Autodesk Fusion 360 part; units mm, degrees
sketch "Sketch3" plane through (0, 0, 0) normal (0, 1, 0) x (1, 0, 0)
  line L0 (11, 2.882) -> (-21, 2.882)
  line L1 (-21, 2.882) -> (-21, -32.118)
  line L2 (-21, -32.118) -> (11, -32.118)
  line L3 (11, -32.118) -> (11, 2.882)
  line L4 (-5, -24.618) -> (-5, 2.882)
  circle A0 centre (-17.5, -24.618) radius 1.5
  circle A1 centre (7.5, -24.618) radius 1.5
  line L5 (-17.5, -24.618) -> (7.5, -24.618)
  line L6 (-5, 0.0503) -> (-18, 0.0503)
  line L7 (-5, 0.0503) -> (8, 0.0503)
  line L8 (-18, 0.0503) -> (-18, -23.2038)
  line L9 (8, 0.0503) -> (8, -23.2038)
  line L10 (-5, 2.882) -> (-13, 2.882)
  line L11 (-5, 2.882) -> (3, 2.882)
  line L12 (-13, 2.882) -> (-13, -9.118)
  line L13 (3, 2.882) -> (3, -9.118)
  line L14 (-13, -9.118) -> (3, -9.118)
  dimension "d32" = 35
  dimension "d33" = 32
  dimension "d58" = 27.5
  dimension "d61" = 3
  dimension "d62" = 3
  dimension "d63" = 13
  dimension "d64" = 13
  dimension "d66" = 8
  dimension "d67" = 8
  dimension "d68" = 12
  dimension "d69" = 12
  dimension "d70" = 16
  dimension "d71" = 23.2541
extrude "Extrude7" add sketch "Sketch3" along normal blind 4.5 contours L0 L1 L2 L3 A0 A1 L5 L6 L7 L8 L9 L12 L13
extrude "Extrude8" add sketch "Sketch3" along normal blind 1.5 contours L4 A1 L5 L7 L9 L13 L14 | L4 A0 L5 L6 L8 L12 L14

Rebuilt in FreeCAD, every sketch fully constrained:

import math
import FreeCAD as App
import Part
import Sketcher
Q = App.Units.Quantity

doc = App.newDocument("Part")
body = doc.addObject("PartDesign::Body", "Body")

# Sketch on XZ plane
sketch1 = doc.addObject("Sketcher::SketchObject", "Sketch")
body.addObject(sketch1)
sketch1.AttachmentSupport = (doc.XZ_Plane, [""])
sketch1.MapMode = "FlatFace"
sketch1.addGeometry([
    Part.LineSegment(App.Vector(11, 32.1, 0), App.Vector(11, -2.9, 0)),  # 0
    Part.LineSegment(App.Vector(11, -2.9, 0), App.Vector(3, -2.9, 0)),  # 1
    Part.LineSegment(App.Vector(3, -2.9, 0), App.Vector(3, -0.1, 0)),  # 2
    Part.LineSegment(App.Vector(3, -0.1, 0), App.Vector(8, -0.1, 0)),  # 3
    Part.LineSegment(App.Vector(8, -0.1, 0), App.Vector(8, 23.2, 0)),  # 4
    Part.ArcOfCircle(Part.Circle(App.Vector(7.5, 24.6, 0), App.Vector(0, 0, 1), 1.5), math.radians(-71), math.radians(180)),  # 5
    Part.LineSegment(App.Vector(6, 24.6, 0), App.Vector(-16, 24.6, 0)),  # 6
    Part.ArcOfCircle(Part.Circle(App.Vector(-17.5, 24.6, 0), App.Vector(0, 0, 1), 1.5), math.radians(0), math.radians(251)),  # 7
    Part.LineSegment(App.Vector(-18, 23.2, 0), App.Vector(-18, -0.1, 0)),  # 8
    Part.LineSegment(App.Vector(-18, -0.1, 0), App.Vector(-13, -0.1, 0)),  # 9
    Part.LineSegment(App.Vector(-13, -0.1, 0), App.Vector(-13, -2.9, 0)),  # 10
    Part.LineSegment(App.Vector(-13, -2.9, 0), App.Vector(-21, -2.9, 0)),  # 11
    Part.LineSegment(App.Vector(-21, -2.9, 0), App.Vector(-21, 32.1, 0)),  # 12
    Part.LineSegment(App.Vector(-21, 32.1, 0), App.Vector(11, 32.1, 0)),  # 13
], False)
sketch1.addConstraint([
    Sketcher.Constraint("Coincident", 0, 2, 1, 1),
    Sketcher.Constraint("Coincident", 1, 2, 2, 1),
    Sketcher.Constraint("Coincident", 2, 2, 3, 1),
    Sketcher.Constraint("Coincident", 3, 2, 4, 1),
    Sketcher.Constraint("Coincident", 4, 2, 5, 1),
    Sketcher.Constraint("Coincident", 5, 2, 6, 1),
    Sketcher.Constraint("Coincident", 6, 2, 7, 1),
    Sketcher.Constraint("Coincident", 7, 2, 8, 1),
    Sketcher.Constraint("Coincident", 8, 2, 9, 1),
    Sketcher.Constraint("Coincident", 9, 2, 10, 1),
    Sketcher.Constraint("Coincident", 10, 2, 11, 1),
    Sketcher.Constraint("Coincident", 11, 2, 12, 1),
    Sketcher.Constraint("Coincident", 12, 2, 13, 1),
    Sketcher.Constraint("Coincident", 13, 2, 0, 1),
    Sketcher.Constraint("Vertical", 0),
    Sketcher.Constraint("Horizontal", 1),
    Sketcher.Constraint("Vertical", 2),
    Sketcher.Constraint("Horizontal", 3),
    Sketcher.Constraint("Vertical", 4),
    Sketcher.Constraint("Horizontal", 6),
    Sketcher.Constraint("Vertical", 8),
    Sketcher.Constraint("Horizontal", 9),
    Sketcher.Constraint("Vertical", 10),
    Sketcher.Constraint("Horizontal", 11),
    Sketcher.Constraint("Vertical", 12),
    Sketcher.Constraint("Horizontal", 13),
    Sketcher.Constraint("Equal", 5, 7),
    Sketcher.Constraint("Horizontal", 5, 3, 7, 3),
    Sketcher.Constraint("Horizontal", 7, 3, 5, 2),
    Sketcher.Constraint("Horizontal", 4, 2, 7, 2),
    Sketcher.Constraint("Horizontal", 3, 2, 8, 2),
    Sketcher.Constraint("Horizontal", 1, 2, 10, 2),
    Sketcher.Constraint("Equal", 3, 9),
    Sketcher.Constraint("Equal", 1, 11),
    Sketcher.Constraint("Radius", 5, Q("1.5 mm")),
    Sketcher.Constraint("DistanceX", 1, 2, 1, 1, Q("8 mm")),
    Sketcher.Constraint("DistanceX", 13, 1, 13, 2, Q("32 mm")),
    Sketcher.Constraint("DistanceY", 0, 2, 0, 1, Q("35 mm")),
    Sketcher.Constraint("DistanceX", -1, 1, 1, 2, Q("3 mm")),
    Sketcher.Constraint("DistanceX", -1, 1, 3, 2, Q("8 mm")),
    Sketcher.Constraint("DistanceX", 6, 2, -1, 1, Q("16 mm")),
    Sketcher.Constraint("DistanceY", 0, 2, 5, 3, Q("27.5 mm")),
    Sketcher.Constraint("DistanceY", 4, 1, 4, 2, Q("23.254 mm")),
    Sketcher.Constraint("DistanceY", -1, 1, 5, 3, Q("24.618 mm")),
])
pad1 = doc.addObject("PartDesign::Pad", "Pad")
body.addObject(pad1)
pad1.Profile = sketch1
pad1.Length = 4.5
pad1.Reversed = True

# Sketch on XZ plane
sketch2 = doc.addObject("Sketcher::SketchObject", "Sketch001")
body.addObject(sketch2)
sketch2.AttachmentSupport = (doc.XZ_Plane, [""])
sketch2.MapMode = "FlatFace"
sketch2.addGeometry([
    Part.LineSegment(App.Vector(8, -0.1, 0), App.Vector(3, -0.1, 0)),  # 0
    Part.LineSegment(App.Vector(3, -0.1, 0), App.Vector(3, 9.1, 0)),  # 1
    Part.LineSegment(App.Vector(3, 9.1, 0), App.Vector(-13, 9.1, 0)),  # 2
    Part.LineSegment(App.Vector(-13, 9.1, 0), App.Vector(-13, -0.1, 0)),  # 3
    Part.LineSegment(App.Vector(-13, -0.1, 0), App.Vector(-18, -0.1, 0)),  # 4
    Part.LineSegment(App.Vector(-18, -0.1, 0), App.Vector(-18, 23.2, 0)),  # 5
    Part.ArcOfCircle(Part.Circle(App.Vector(-17.5, 24.6, 0), App.Vector(0, 0, 1), 1.5), math.radians(-109), math.radians(0)),  # 6
    Part.LineSegment(App.Vector(-16, 24.6, 0), App.Vector(6, 24.6, 0)),  # 7
    Part.ArcOfCircle(Part.Circle(App.Vector(7.5, 24.6, 0), App.Vector(0, 0, 1), 1.5), math.radians(180), math.radians(289)),  # 8
    Part.LineSegment(App.Vector(8, 23.2, 0), App.Vector(8, -0.1, 0)),  # 9
], False)
sketch2.addConstraint([
    Sketcher.Constraint("Coincident", 0, 2, 1, 1),
    Sketcher.Constraint("Coincident", 1, 2, 2, 1),
    Sketcher.Constraint("Coincident", 2, 2, 3, 1),
    Sketcher.Constraint("Coincident", 3, 2, 4, 1),
    Sketcher.Constraint("Coincident", 4, 2, 5, 1),
    Sketcher.Constraint("Coincident", 5, 2, 6, 1),
    Sketcher.Constraint("Coincident", 6, 2, 7, 1),
    Sketcher.Constraint("Coincident", 7, 2, 8, 1),
    Sketcher.Constraint("Coincident", 8, 2, 9, 1),
    Sketcher.Constraint("Coincident", 9, 2, 0, 1),
    Sketcher.Constraint("Horizontal", 0),
    Sketcher.Constraint("Vertical", 1),
    Sketcher.Constraint("Horizontal", 2),
    Sketcher.Constraint("Vertical", 3),
    Sketcher.Constraint("Horizontal", 4),
    Sketcher.Constraint("Vertical", 5),
    Sketcher.Constraint("Horizontal", 7),
    Sketcher.Constraint("Vertical", 9),
    Sketcher.Constraint("Equal", 6, 8),
    Sketcher.Constraint("Horizontal", 6, 3, 8, 3),
    Sketcher.Constraint("Horizontal", 0, 2, 3, 2),
    Sketcher.Constraint("Horizontal", 8, 3, 6, 2),
    Sketcher.Constraint("Horizontal", 5, 2, 8, 2),
    Sketcher.Constraint("Equal", 0, 4),
    Sketcher.Constraint("Radius", 6, Q("1.5 mm")),
    Sketcher.Constraint("DistanceX", 2, 2, 2, 1, Q("16 mm")),
    Sketcher.Constraint("DistanceX", -1, 1, 0, 2, Q("3 mm")),
    Sketcher.Constraint("DistanceX", 6, 2, -1, 1, Q("16 mm")),
    Sketcher.Constraint("DistanceX", -1, 1, 8, 2, Q("8 mm")),
    Sketcher.Constraint("DistanceY", 5, 1, 5, 2, Q("23.254 mm")),
    Sketcher.Constraint("DistanceY", 1, 2, 8, 3, Q("15.5 mm")),
    Sketcher.Constraint("DistanceY", -1, 1, 6, 3, Q("24.618 mm")),
])
pad2 = doc.addObject("PartDesign::Pad", "Pad001")
body.addObject(pad2)
pad2.Profile = sketch2
pad2.Length = 1.5
pad2.Reversed = True

doc.recompute()
